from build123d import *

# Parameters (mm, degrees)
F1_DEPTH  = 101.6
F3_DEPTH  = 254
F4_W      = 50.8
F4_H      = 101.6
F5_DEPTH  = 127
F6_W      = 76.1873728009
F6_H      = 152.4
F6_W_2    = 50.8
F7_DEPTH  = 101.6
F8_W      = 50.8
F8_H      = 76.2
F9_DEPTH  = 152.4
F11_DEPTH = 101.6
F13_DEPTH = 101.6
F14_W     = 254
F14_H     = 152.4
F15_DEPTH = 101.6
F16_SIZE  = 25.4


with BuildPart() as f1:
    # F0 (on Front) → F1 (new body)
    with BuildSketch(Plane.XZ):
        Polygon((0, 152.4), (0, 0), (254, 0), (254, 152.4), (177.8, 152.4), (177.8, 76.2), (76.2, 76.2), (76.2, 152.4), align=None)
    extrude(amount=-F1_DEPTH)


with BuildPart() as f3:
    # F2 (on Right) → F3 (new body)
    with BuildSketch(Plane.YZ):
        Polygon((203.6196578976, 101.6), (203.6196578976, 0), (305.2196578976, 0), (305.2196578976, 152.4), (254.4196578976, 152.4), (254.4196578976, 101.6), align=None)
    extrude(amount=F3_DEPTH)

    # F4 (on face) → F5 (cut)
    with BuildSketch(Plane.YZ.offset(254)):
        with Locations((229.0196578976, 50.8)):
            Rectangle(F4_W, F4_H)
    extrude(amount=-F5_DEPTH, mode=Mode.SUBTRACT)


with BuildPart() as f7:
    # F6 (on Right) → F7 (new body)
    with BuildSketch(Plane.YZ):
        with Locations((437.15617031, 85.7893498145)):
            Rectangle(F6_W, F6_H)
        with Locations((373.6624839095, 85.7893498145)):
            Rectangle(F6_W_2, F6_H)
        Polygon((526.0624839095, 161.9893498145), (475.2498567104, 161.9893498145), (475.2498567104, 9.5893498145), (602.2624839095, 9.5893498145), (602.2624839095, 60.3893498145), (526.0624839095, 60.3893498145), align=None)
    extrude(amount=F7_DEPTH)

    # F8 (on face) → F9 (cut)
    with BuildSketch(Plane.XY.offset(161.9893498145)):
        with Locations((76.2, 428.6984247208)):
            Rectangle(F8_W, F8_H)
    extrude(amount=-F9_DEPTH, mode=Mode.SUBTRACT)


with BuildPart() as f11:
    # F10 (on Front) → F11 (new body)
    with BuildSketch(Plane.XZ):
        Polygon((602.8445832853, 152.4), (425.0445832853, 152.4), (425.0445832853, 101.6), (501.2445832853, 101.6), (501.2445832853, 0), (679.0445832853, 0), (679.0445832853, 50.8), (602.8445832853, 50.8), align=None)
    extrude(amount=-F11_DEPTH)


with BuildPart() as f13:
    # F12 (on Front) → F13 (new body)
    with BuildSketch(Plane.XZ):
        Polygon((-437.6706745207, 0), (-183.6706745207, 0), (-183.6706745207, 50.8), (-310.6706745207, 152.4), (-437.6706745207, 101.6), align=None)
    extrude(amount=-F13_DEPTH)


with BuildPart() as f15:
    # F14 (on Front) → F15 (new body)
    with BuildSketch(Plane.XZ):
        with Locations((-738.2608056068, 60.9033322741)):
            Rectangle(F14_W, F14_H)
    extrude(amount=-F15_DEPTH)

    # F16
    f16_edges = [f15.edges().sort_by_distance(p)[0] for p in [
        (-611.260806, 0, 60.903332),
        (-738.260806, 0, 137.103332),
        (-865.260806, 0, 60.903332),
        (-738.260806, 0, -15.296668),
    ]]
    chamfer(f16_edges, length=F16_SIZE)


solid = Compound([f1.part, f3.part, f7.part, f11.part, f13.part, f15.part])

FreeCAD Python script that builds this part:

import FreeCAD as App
import Part
import Sketcher

V = App.Vector
Q = App.Units.Quantity


def edges_at(feature, points):
    """Names of the edges that pass closest to the given points."""
    edges = feature.Shape.Edges
    near = lambda p: min(range(len(edges)), key=lambda i: edges[i].distToShape(Part.Vertex(*p))[0])
    return sorted({f"Edge{near(p) + 1}" for p in points})


def add_polygon(sketch, points):
    """Adds a closed chain of lines whose ends are joined by coincident constraints."""
    first, n = sketch.GeometryCount, len(points)
    for a, b in zip(points, points[1:] + points[:1]):
        sketch.addGeometry(Part.LineSegment(App.Vector(*a, 0), App.Vector(*b, 0)), False)
    for i in range(n):
        sketch.addConstraint(Sketcher.Constraint("Coincident", first + i, 2, first + (i + 1) % n, 1))

doc = App.newDocument("Part")
body = doc.addObject("PartDesign::Body", "Body")

# Sketch on XZ plane
sketch1 = body.newObject("Sketcher::SketchObject", "Sketch")
sketch1.AttachmentSupport = (doc.getObject("XZ_Plane"), [""])
sketch1.MapMode = "FlatFace"
add_polygon(sketch1, [(0, 152.4), (0, 0), (254, 0), (254, 152.4), (177.8, 152.4), (177.8, 76.2), (76.2, 76.2), (76.2, 152.4)])  # lines 0-7
sketch1.addConstraint([
    Sketcher.Constraint("Vertical", 0),
    Sketcher.Constraint("Horizontal", 1),
    Sketcher.Constraint("Vertical", 2),
    Sketcher.Constraint("Horizontal", 3),
    Sketcher.Constraint("Vertical", 4),
    Sketcher.Constraint("Horizontal", 5),
    Sketcher.Constraint("Vertical", 6),
    Sketcher.Constraint("Horizontal", 7),
    Sketcher.Constraint("Coincident", 0, 2, -1, 1),
    Sketcher.Constraint("Horizontal", 3, 2, 6, 2),
    Sketcher.Constraint("Equal", 3, 7),
    Sketcher.Constraint("Equal", 7, 4),
    Sketcher.Constraint("DistanceX", 1, 1, 1, 2, Q("10 in")),
    Sketcher.Constraint("DistanceX", 3, 2, 3, 1, Q("3 in")),
    Sketcher.Constraint("DistanceY", 0, 2, 0, 1, Q("6 in")),
])
pad1 = body.newObject("PartDesign::Pad", "Pad")
pad1.Profile = sketch1
pad1.Length = Q("4 in")
pad1.Reversed = True
body2 = doc.addObject("PartDesign::Body", "Body001")

# Sketch on YZ plane
sketch2 = body2.newObject("Sketcher::SketchObject", "Sketch001")
sketch2.AttachmentSupport = (doc.getObject("YZ_Plane001"), [""])
sketch2.MapMode = "FlatFace"
add_polygon(sketch2, [(203.619658, 101.6), (203.619658, 0), (305.219658, 0), (305.219658, 152.4), (254.419658, 152.4), (254.419658, 101.6)])  # lines 0-5
sketch2.addConstraint([
    Sketcher.Constraint("Vertical", 0),
    Sketcher.Constraint("Horizontal", 1),
    Sketcher.Constraint("Vertical", 2),
    Sketcher.Constraint("Horizontal", 3),
    Sketcher.Constraint("Vertical", 4),
    Sketcher.Constraint("Horizontal", 5),
    Sketcher.Constraint("PointOnObject", 0, 2, -1),
    Sketcher.Constraint("Equal", 3, 5),
    Sketcher.Constraint("Equal", 1, 0),
    Sketcher.Constraint("Equal", 5, 4),
    Sketcher.Constraint("DistanceX", 1, 1, 1, 2, Q("4 in")),
    Sketcher.Constraint("DistanceX", -1, 1, 0, 2, Q("203.619658 mm")),
])
pad2 = body2.newObject("PartDesign::Pad", "Pad001")
pad2.Profile = sketch2
pad2.Length = Q("10 in")

# Sketch on YZ plane
sketch3 = body2.newObject("Sketcher::SketchObject", "Sketch002")
sketch3.AttachmentSupport = (doc.getObject("YZ_Plane001"), [""])
sketch3.MapMode = "FlatFace"
sketch3.AttachmentOffset = App.Placement(V(0, 0, 10 * 25.4), App.Rotation())
add_polygon(sketch3, [(203.619658, 101.6), (203.619658, 0), (254.419658, 0), (254.419658, 101.6)])  # lines 0-3
sketch3.addConstraint([
    Sketcher.Constraint("Vertical", 0),
    Sketcher.Constraint("Horizontal", 1),
    Sketcher.Constraint("Vertical", 2),
    Sketcher.Constraint("Horizontal", 3),
    Sketcher.Constraint("PointOnObject", 0, 2, -1),
    Sketcher.Constraint("DistanceX", 1, 1, 1, 2, Q("2 in")),
    Sketcher.Constraint("DistanceY", 0, 2, 0, 1, Q("4 in")),
    Sketcher.Constraint("DistanceX", -1, 1, 0, 2, Q("203.619658 mm")),
])
pocket1 = body2.newObject("PartDesign::Pocket", "Pocket")
pocket1.Profile = sketch3
pocket1.Length = Q("5 in")
body3 = doc.addObject("PartDesign::Body", "Body002")

# Sketch on YZ plane
sketch4 = body3.newObject("Sketcher::SketchObject", "Sketch003")
sketch4.AttachmentSupport = (doc.getObject("YZ_Plane002"), [""])
sketch4.MapMode = "FlatFace"
add_polygon(sketch4, [(348.262484, 161.98935), (348.262484, 9.58935), (602.262484, 9.58935), (602.262484, 60.38935), (526.062484, 60.38935), (526.062484, 161.98935)])  # lines 0-5
sketch4.addConstraint([
    Sketcher.Constraint("Vertical", 0),
    Sketcher.Constraint("Horizontal", 1),
    Sketcher.Constraint("Vertical", 2),
    Sketcher.Constraint("Horizontal", 3),
    Sketcher.Constraint("Vertical", 4),
    Sketcher.Constraint("Horizontal", 5),
    Sketcher.Constraint("DistanceX", 1, 1, 1, 2, Q("10 in")),
    Sketcher.Constraint("DistanceX", 3, 2, 3, 1, Q("3 in")),
    Sketcher.Constraint("DistanceY", 0, 2, 0, 1, Q("6 in")),
    Sketcher.Constraint("DistanceY", 2, 1, 2, 2, Q("2 in")),
    Sketcher.Constraint("DistanceY", -1, 1, 0, 2, Q("9.58935 mm")),
    Sketcher.Constraint("DistanceX", -1, 1, 0, 2, Q("348.262484 mm")),
])
pad3 = body3.newObject("PartDesign::Pad", "Pad002")
pad3.Profile = sketch4
pad3.Length = Q("4 in")

# Sketch on XY plane
sketch5 = body3.newObject("Sketcher::SketchObject", "Sketch004")
sketch5.AttachmentSupport = (doc.getObject("XY_Plane002"), [""])
sketch5.MapMode = "FlatFace"
sketch5.AttachmentOffset = App.Placement(V(0, 0, 161.98935), App.Rotation())
add_polygon(sketch5, [(50.8, 466.798425), (50.8, 390.598425), (101.6, 390.598425), (101.6, 466.798425)])  # lines 0-3
sketch5.addConstraint([
    Sketcher.Constraint("Vertical", 0),
    Sketcher.Constraint("Horizontal", 1),
    Sketcher.Constraint("Vertical", 2),
    Sketcher.Constraint("Horizontal", 3),
    Sketcher.Constraint("DistanceX", 1, 1, 1, 2, Q("2 in")),
    Sketcher.Constraint("DistanceY", 0, 2, 0, 1, Q("3 in")),
    Sketcher.Constraint("DistanceX", -1, 1, 0, 2, Q("2 in")),
    Sketcher.Constraint("DistanceY", -1, 1, 0, 2, Q("390.598425 mm")),
])
pocket2 = body3.newObject("PartDesign::Pocket", "Pocket001")
pocket2.Profile = sketch5
pocket2.Length = Q("6 in")
body4 = doc.addObject("PartDesign::Body", "Body003")

# Sketch on XZ plane
sketch6 = body4.newObject("Sketcher::SketchObject", "Sketch005")
sketch6.AttachmentSupport = (doc.getObject("XZ_Plane003"), [""])
sketch6.MapMode = "FlatFace"
add_polygon(sketch6, [(602.844583, 152.4), (425.044583, 152.4), (425.044583, 101.6), (501.244583, 101.6), (501.244583, 0), (679.044583, 0), (679.044583, 50.8), (602.844583, 50.8)])  # lines 0-7
sketch6.addConstraint([
    Sketcher.Constraint("Horizontal", 0),
    Sketcher.Constraint("Vertical", 1),
    Sketcher.Constraint("Horizontal", 2),
    Sketcher.Constraint("Vertical", 3),
    Sketcher.Constraint("Horizontal", 4),
    Sketcher.Constraint("Vertical", 5),
    Sketcher.Constraint("Horizontal", 6),
    Sketcher.Constraint("Vertical", 7),
    Sketcher.Constraint("PointOnObject", 3, 2, -1),
    Sketcher.Constraint("Equal", 0, 4),
    Sketcher.Constraint("Equal", 1, 5),
    Sketcher.Constraint("DistanceX", 0, 2, 0, 1, Q("7 in")),
    Sketcher.Constraint("DistanceX", 2, 1, 2, 2, Q("3 in")),
    Sketcher.Constraint("DistanceY", 1, 2, 1, 1, Q("2 in")),
    Sketcher.Constraint("DistanceY", 3, 2, 3, 1, Q("4 in")),
    Sketcher.Constraint("DistanceX", -1, 1, 0, 2, Q("425.044583 mm")),
])
pad4 = body4.newObject("PartDesign::Pad", "Pad003")
pad4.Profile = sketch6
pad4.Length = Q("4 in")
pad4.Reversed = True
body5 = doc.addObject("PartDesign::Body", "Body004")

# Sketch on XZ plane
sketch7 = body5.newObject("Sketcher::SketchObject", "Sketch006")
sketch7.AttachmentSupport = (doc.getObject("XZ_Plane004"), [""])
sketch7.MapMode = "FlatFace"
add_polygon(sketch7, [(-437.670675, 0), (-183.670675, 0), (-183.670675, 50.8), (-310.670675, 152.4), (-437.670675, 101.6)])  # lines 0-4
sketch7.addConstraint([
    Sketcher.Constraint("Horizontal", 0),
    Sketcher.Constraint("Vertical", 1),
    Sketcher.Constraint("Vertical", 4),
    Sketcher.Constraint("PointOnObject", 0, 2, -1),
    Sketcher.Constraint("DistanceX", 0, 1, 0, 2, Q("10 in")),
    Sketcher.Constraint("DistanceY", 1, 1, 1, 2, Q("2 in")),
    Sketcher.Constraint("DistanceY", 4, 2, 4, 1, Q("4 in")),
    Sketcher.Constraint("DistanceY", -1, 1, 2, 2, Q("6 in")),
    Sketcher.Constraint("DistanceX", 2, 2, 1, 2, Q("5 in")),
    Sketcher.Constraint("DistanceX", 0, 2, -1, 1, Q("183.670675 mm")),
])
pad5 = body5.newObject("PartDesign::Pad", "Pad004")
pad5.Profile = sketch7
pad5.Length = Q("4 in")
pad5.Reversed = True
body6 = doc.addObject("PartDesign::Body", "Body005")

# Sketch on XZ plane
sketch8 = body6.newObject("Sketcher::SketchObject", "Sketch007")
sketch8.AttachmentSupport = (doc.getObject("XZ_Plane005"), [""])
sketch8.MapMode = "FlatFace"
add_polygon(sketch8, [(-865.260806, 137.103332), (-865.260806, -15.296668), (-611.260806, -15.296668), (-611.260806, 137.103332)])  # lines 0-3
sketch8.addConstraint([
    Sketcher.Constraint("Vertical", 0),
    Sketcher.Constraint("Horizontal", 1),
    Sketcher.Constraint("Vertical", 2),
    Sketcher.Constraint("Horizontal", 3),
    Sketcher.Constraint("DistanceX", 1, 1, 1, 2, Q("10 in")),
    Sketcher.Constraint("DistanceY", 0, 2, 0, 1, Q("6 in")),
    Sketcher.Constraint("DistanceX", 0, 2, -1, 1, Q("865.260806 mm")),
    Sketcher.Constraint("DistanceY", 0, 2, -1, 1, Q("15.296668 mm")),
])
pad6 = body6.newObject("PartDesign::Pad", "Pad005")
pad6.Profile = sketch8
pad6.Length = Q("4 in")
pad6.Reversed = True
doc.recompute()

chamfer = body6.newObject("PartDesign::Chamfer", "Chamfer")
chamfer.Base = (pad6, edges_at(pad6, [
    (-611.261, 0, 60.903),
    (-738.261, 0, 137.103),
    (-865.261, 0, 60.903),
    (-738.261, 0, -15.297),
]))
chamfer.Size = Q("1 in")

doc.recompute()
